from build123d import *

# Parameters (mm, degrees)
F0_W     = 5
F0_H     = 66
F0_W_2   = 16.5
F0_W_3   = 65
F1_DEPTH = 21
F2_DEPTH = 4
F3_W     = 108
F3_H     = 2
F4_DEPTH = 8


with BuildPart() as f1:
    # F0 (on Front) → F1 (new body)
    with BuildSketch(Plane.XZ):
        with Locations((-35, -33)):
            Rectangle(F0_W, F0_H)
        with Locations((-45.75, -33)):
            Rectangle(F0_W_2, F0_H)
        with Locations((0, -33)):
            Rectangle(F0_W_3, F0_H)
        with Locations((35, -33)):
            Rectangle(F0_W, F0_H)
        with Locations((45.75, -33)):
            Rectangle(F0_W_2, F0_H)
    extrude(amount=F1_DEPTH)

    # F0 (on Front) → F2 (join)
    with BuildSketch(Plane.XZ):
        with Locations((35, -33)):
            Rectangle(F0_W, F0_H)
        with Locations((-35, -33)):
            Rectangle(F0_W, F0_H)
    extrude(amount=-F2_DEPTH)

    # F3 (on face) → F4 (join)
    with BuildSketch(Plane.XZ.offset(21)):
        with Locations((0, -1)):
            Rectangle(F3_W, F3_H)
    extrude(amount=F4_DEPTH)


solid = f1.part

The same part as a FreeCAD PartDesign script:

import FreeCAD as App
import Part
import Sketcher

doc = App.newDocument("Part")
body = doc.addObject("PartDesign::Body", "Body")

sketch1 = body.newObject("Sketcher::SketchObject", "Sketch")
sketch1.AttachmentSupport = (doc.getObject("XZ_Plane"), [""])
sketch1.MapMode = "FlatFace"
sketch1.addGeometry(Part.LineSegment(App.Vector(-54, 0, 0), App.Vector(-54, -66, 0)), False)
sketch1.addGeometry(Part.LineSegment(App.Vector(-54, -66, 0), App.Vector(54, -66, 0)), False)
sketch1.addGeometry(Part.LineSegment(App.Vector(54, -66, 0), App.Vector(54, 0, 0)), False)
sketch1.addGeometry(Part.LineSegment(App.Vector(54, 0, 0), App.Vector(-54, 0, 0)), False)
sketch1.addConstraint(Sketcher.Constraint("Coincident", 0, 2, 1, 1))
sketch1.addConstraint(Sketcher.Constraint("Coincident", 1, 2, 2, 1))
sketch1.addConstraint(Sketcher.Constraint("Coincident", 2, 2, 3, 1))
sketch1.addConstraint(Sketcher.Constraint("Coincident", 3, 2, 0, 1))
sketch1.addConstraint(Sketcher.Constraint("Vertical", 0))
sketch1.addConstraint(Sketcher.Constraint("Horizontal", 1))
sketch1.addConstraint(Sketcher.Constraint("Vertical", 2))
sketch1.addConstraint(Sketcher.Constraint("Horizontal", 3))
sketch1.addConstraint(Sketcher.Constraint("Symmetric", 2, 2, 3, 2, -1, 1))
sketch1.addConstraint(Sketcher.Constraint("DistanceX", 1, 1, 1, 2, 108.0))
sketch1.addConstraint(Sketcher.Constraint("DistanceY", 0, 2, 0, 1, 66.0))
pad1 = body.newObject("PartDesign::Pad", "Pad")
pad1.Profile = sketch1
pad1.Length = 21

sketch2 = body.newObject("Sketcher::SketchObject", "Sketch001")
sketch2.AttachmentSupport = (doc.getObject("XZ_Plane"), [""])
sketch2.MapMode = "FlatFace"
sketch2.addGeometry(Part.LineSegment(App.Vector(32.5, 0, 0), App.Vector(32.5, -66, 0)), False)
sketch2.addGeometry(Part.LineSegment(App.Vector(32.5, -66, 0), App.Vector(37.5, -66, 0)), False)
sketch2.addGeometry(Part.LineSegment(App.Vector(37.5, -66, 0), App.Vector(37.5, 0, 0)), False)
sketch2.addGeometry(Part.LineSegment(App.Vector(37.5, 0, 0), App.Vector(32.5, 0, 0)), False)
sketch2.addGeometry(Part.LineSegment(App.Vector(-37.5, 0, 0), App.Vector(-37.5, -66, 0)), False)
sketch2.addGeometry(Part.LineSegment(App.Vector(-37.5, -66, 0), App.Vector(-32.5, -66, 0)), False)
sketch2.addGeometry(Part.LineSegment(App.Vector(-32.5, -66, 0), App.Vector(-32.5, 0, 0)), False)
sketch2.addGeometry(Part.LineSegment(App.Vector(-32.5, 0, 0), App.Vector(-37.5, 0, 0)), False)
sketch2.addConstraint(Sketcher.Constraint("Coincident", 0, 2, 1, 1))
sketch2.addConstraint(Sketcher.Constraint("Coincident", 1, 2, 2, 1))
sketch2.addConstraint(Sketcher.Constraint("Coincident", 2, 2, 3, 1))
sketch2.addConstraint(Sketcher.Constraint("Coincident", 3, 2, 0, 1))
sketch2.addConstraint(Sketcher.Constraint("Coincident", 4, 2, 5, 1))
sketch2.addConstraint(Sketcher.Constraint("Coincident", 5, 2, 6, 1))
sketch2.addConstraint(Sketcher.Constraint("Coincident", 6, 2, 7, 1))
sketch2.addConstraint(Sketcher.Constraint("Coincident", 7, 2, 4, 1))
sketch2.addConstraint(Sketcher.Constraint("Vertical", 0))
sketch2.addConstraint(Sketcher.Constraint("Horizontal", 1))
sketch2.addConstraint(Sketcher.Constraint("Vertical", 2))
sketch2.addConstraint(Sketcher.Constraint("Horizontal", 3))
sketch2.addConstraint(Sketcher.Constraint("Vertical", 4))
sketch2.addConstraint(Sketcher.Constraint("Horizontal", 5))
sketch2.addConstraint(Sketcher.Constraint("Vertical", 6))
sketch2.addConstraint(Sketcher.Constraint("Horizontal", 7))
sketch2.addConstraint(Sketcher.Constraint("Symmetric", 3, 2, 6, 2, -1, 1))
sketch2.addConstraint(Sketcher.Constraint("Symmetric", 1, 2, 4, 2, -2))
sketch2.addConstraint(Sketcher.Constraint("PointOnObject", 2, 2, -1))
sketch2.addConstraint(Sketcher.Constraint("DistanceX", 1, 1, 1, 2, 5.0))
sketch2.addConstraint(Sketcher.Constraint("DistanceY", 0, 2, 0, 1, 66.0))
sketch2.addConstraint(Sketcher.Constraint("DistanceX", 4, 2, 0, 2, 70.0))
pad2 = body.newObject("PartDesign::Pad", "Pad001")
pad2.Profile = sketch2
pad2.Length = 4
pad2.Reversed = True

sketch3 = body.newObject("Sketcher::SketchObject", "Sketch002")
sketch3.AttachmentSupport = (doc.getObject("XZ_Plane"), [""])
sketch3.MapMode = "FlatFace"
sketch3.AttachmentOffset = App.Placement(App.Vector(0, 0, 21), App.Rotation())
sketch3.addGeometry(Part.LineSegment(App.Vector(-54, 0, 0), App.Vector(-54, -2, 0)), False)
sketch3.addGeometry(Part.LineSegment(App.Vector(-54, -2, 0), App.Vector(54, -2, 0)), False)
sketch3.addGeometry(Part.LineSegment(App.Vector(54, -2, 0), App.Vector(54, 0, 0)), False)
sketch3.addGeometry(Part.LineSegment(App.Vector(54, 0, 0), App.Vector(-54, 0, 0)), False)
sketch3.addConstraint(Sketcher.Constraint("Coincident", 0, 2, 1, 1))
sketch3.addConstraint(Sketcher.Constraint("Coincident", 1, 2, 2, 1))
sketch3.addConstraint(Sketcher.Constraint("Coincident", 2, 2, 3, 1))
sketch3.addConstraint(Sketcher.Constraint("Coincident", 3, 2, 0, 1))
sketch3.addConstraint(Sketcher.Constraint("Vertical", 0))
sketch3.addConstraint(Sketcher.Constraint("Horizontal", 1))
sketch3.addConstraint(Sketcher.Constraint("Vertical", 2))
sketch3.addConstraint(Sketcher.Constraint("Horizontal", 3))
sketch3.addConstraint(Sketcher.Constraint("Symmetric", 2, 2, 3, 2, -1, 1))
sketch3.addConstraint(Sketcher.Constraint("DistanceX", 1, 1, 1, 2, 108.0))
sketch3.addConstraint(Sketcher.Constraint("DistanceY", 0, 2, 0, 1, 2.0))
pad3 = body.newObject("PartDesign::Pad", "Pad002")
pad3.Profile = sketch3
pad3.Length = 8

doc.recompute()
